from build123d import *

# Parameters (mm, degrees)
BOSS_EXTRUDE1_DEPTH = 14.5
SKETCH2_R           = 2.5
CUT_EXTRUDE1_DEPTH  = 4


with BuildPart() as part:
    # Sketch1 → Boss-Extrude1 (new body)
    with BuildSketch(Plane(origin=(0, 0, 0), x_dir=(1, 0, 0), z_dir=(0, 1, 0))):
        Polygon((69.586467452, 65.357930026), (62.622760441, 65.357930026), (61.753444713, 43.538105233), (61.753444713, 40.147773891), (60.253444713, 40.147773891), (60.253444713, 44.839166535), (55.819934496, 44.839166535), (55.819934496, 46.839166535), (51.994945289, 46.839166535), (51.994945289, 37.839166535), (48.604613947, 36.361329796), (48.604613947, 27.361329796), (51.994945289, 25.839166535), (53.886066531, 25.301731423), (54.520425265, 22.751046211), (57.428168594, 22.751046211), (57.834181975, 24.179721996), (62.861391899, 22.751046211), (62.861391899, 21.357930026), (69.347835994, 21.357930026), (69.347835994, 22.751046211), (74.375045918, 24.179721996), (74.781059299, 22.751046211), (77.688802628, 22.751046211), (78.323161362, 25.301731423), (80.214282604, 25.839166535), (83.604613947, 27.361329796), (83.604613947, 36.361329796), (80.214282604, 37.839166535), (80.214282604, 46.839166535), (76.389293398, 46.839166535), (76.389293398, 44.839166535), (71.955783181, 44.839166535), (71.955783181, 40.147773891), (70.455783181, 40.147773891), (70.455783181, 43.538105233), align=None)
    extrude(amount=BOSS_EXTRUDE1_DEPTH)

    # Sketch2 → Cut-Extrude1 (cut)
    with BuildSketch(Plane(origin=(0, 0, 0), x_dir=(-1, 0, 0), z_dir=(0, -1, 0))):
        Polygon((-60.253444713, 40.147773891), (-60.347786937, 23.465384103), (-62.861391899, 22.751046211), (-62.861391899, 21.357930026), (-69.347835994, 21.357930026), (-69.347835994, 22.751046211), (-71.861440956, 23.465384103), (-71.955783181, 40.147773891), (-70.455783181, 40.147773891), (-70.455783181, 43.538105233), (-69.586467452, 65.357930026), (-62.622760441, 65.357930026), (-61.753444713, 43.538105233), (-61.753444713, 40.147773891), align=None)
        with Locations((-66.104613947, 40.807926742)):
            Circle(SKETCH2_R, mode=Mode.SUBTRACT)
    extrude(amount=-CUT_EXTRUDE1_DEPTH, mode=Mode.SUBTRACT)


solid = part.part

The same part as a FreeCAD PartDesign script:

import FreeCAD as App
import Part
import Sketcher
from FreeCAD import Vector
Q = App.Units.Quantity


def add_polygon(sketch, points):
    """Adds a closed chain of lines whose ends are joined by coincident constraints."""
    first, n = sketch.GeometryCount, len(points)
    for a, b in zip(points, points[1:] + points[:1]):
        sketch.addGeometry(Part.LineSegment(App.Vector(*a, 0), App.Vector(*b, 0)), False)
    for i in range(n):
        sketch.addConstraint(Sketcher.Constraint("Coincident", first + i, 2, first + (i + 1) % n, 1))

doc = App.newDocument("Part")
params = doc.addObject("Spreadsheet::Sheet", "Params")
for row, (alias, value) in enumerate([
    ("sketch1_height", "2 mm"),
    ("sketch1_height2", "9 mm"),
    ("sketch1_width", "1.5 mm"),
    ("pad1_length", "14.5 mm"),
    ("sketch2_diameter", "5 mm"),
    ("sketch2_width", "1.5 mm"),
    ("pocket1_length", "4 mm"),
], start=1):
    params.set(f"A{row}", alias)
    params.set(f"B{row}", "=" + value)
    params.setAlias(f"B{row}", alias)

body = doc.addObject("PartDesign::Body", "Body")

# Sketch on XZ plane
sketch1 = doc.addObject("Sketcher::SketchObject", "Sketch")
body.addObject(sketch1)
sketch1.AttachmentSupport = (doc.XZ_Plane, [""])
sketch1.MapMode = "FlatFace"
add_polygon(sketch1, [(69.6, -65.4), (62.6, -65.4), (61.8, -43.5), (61.8, -40.1), (60.3, -40.1), (60.3, -44.8), (55.8, -44.8), (55.8, -46.8), (52, -46.8), (52, -37.8), (48.6, -36.4), (48.6, -27.4), (52, -25.8), (53.9, -25.3), (54.5, -22.8), (57.4, -22.8), (57.8, -24.2), (62.9, -22.8), (62.9, -21.4), (69.3, -21.4), (69.3, -22.8), (74.4, -24.2), (74.8, -22.8), (77.7, -22.8), (78.3, -25.3), (80.2, -25.8), (83.6, -27.4), (83.6, -36.4), (80.2, -37.8), (80.2, -46.8), (76.4, -46.8), (76.4, -44.8), (72, -44.8), (72, -40.1), (70.5, -40.1), (70.5, -43.5)])  # lines 0-35
sketch1.addConstraint([
    Sketcher.Constraint("Horizontal", 0),
    Sketcher.Constraint("Vertical", 2),
    Sketcher.Constraint("Horizontal", 3),
    Sketcher.Constraint("Vertical", 4),
    Sketcher.Constraint("Horizontal", 5),
    Sketcher.Constraint("Vertical", 6),
    Sketcher.Constraint("Horizontal", 7),
    Sketcher.Constraint("Vertical", 8),
    Sketcher.Constraint("Vertical", 10),
    Sketcher.Constraint("Horizontal", 14),
    Sketcher.Constraint("Vertical", 17),
    Sketcher.Constraint("Horizontal", 18),
    Sketcher.Constraint("Vertical", 19),
    Sketcher.Constraint("Horizontal", 22),
    Sketcher.Constraint("Vertical", 26),
    Sketcher.Constraint("Vertical", 28),
    Sketcher.Constraint("Horizontal", 29),
    Sketcher.Constraint("Vertical", 30),
    Sketcher.Constraint("Horizontal", 31),
    Sketcher.Constraint("Vertical", 32),
    Sketcher.Constraint("Horizontal", 33),
    Sketcher.Constraint("Vertical", 34),
    Sketcher.Constraint("Perpendicular", 12, 15),
    Sketcher.Constraint("Perpendicular", 15, 16),
    Sketcher.Constraint("Perpendicular", 20, 21),
    Sketcher.Constraint("Perpendicular", 21, 24),
    Sketcher.Constraint("Horizontal", 14, 2, 16, 2),
    Sketcher.Constraint("Horizontal", 16, 2, 19, 2),
    Sketcher.Constraint("Horizontal", 15, 2, 20, 2),
    Sketcher.Constraint("Horizontal", 19, 2, 21, 2),
    Sketcher.Constraint("Horizontal", 12, 2, 23, 2),
    Sketcher.Constraint("Horizontal", 11, 2, 24, 2),
    Sketcher.Constraint("Horizontal", 10, 2, 25, 2),
    Sketcher.Constraint("Horizontal", 9, 2, 26, 2),
    Sketcher.Constraint("Horizontal", 8, 2, 27, 2),
    Sketcher.Constraint("Horizontal", 7, 2, 28, 2),
    Sketcher.Constraint("Horizontal", 5, 2, 30, 2),
    Sketcher.Constraint("Horizontal", 3, 2, 32, 2),
    Sketcher.Constraint("Horizontal", 1, 2, 34, 2),
    Sketcher.Constraint("Vertical", 8, 2, 11, 2),
    Sketcher.Constraint("Vertical", 24, 2, 27, 2),
    Sketcher.Constraint("Equal", 14, 22),
    Sketcher.Constraint("Equal", 7, 29),
    Sketcher.Constraint("Equal", 5, 31),
    Sketcher.Constraint("Equal", 3, 33),
    Sketcher.Constraint("Equal", 8, 10),
    Sketcher.Constraint("Equal", 16, 20),
    Sketcher.Constraint("Equal", 13, 23),
    Sketcher.Constraint("Equal", 11, 25),
    Sketcher.Constraint("Equal", 1, 35),
    Sketcher.Constraint("DistanceY", 6, 2, 6, 1, Q("2 mm")),
    Sketcher.Constraint("DistanceY", 8, 1, 8, 2, Q("9 mm")),
    Sketcher.Constraint("DistanceX", 3, 2, 3, 1, Q("1.5 mm")),
    Sketcher.Constraint("DistanceY", 8, 2, 11, 2, Q("12 mm")),
    Sketcher.Constraint("DistanceX", 5, 2, 5, 1, Q("4.43351 mm")),
    Sketcher.Constraint("DistanceX", 7, 2, 7, 1, Q("3.824989 mm")),
    Sketcher.Constraint("DistanceY", 2, 1, 2, 2, Q("3.390331 mm")),
    Sketcher.Constraint("DistanceY", 10, 2, 12, 2, Q("2.059598 mm")),
    Sketcher.Constraint("DistanceY", 12, 2, 17, 2, Q("3.943801 mm")),
    Sketcher.Constraint("Distance", 11, Q("3.716359 mm")),
    Sketcher.Constraint("DistanceX", 0, 2, 0, 1, Q("6.963707 mm")),
    Sketcher.Constraint("DistanceX", 14, 1, 14, 2, Q("2.907743 mm")),
    Sketcher.Constraint("DistanceX", 18, 1, 18, 2, Q("6.486444 mm")),
    Sketcher.Constraint("DistanceY", 4, 2, 4, 1, Q("4.691393 mm")),
    Sketcher.Constraint("DistanceY", 17, 1, 17, 2, Q("1.393116 mm")),
    Sketcher.Constraint("DistanceX", -1, 1, 0, 2, Q("62.62276 mm")),
    Sketcher.Constraint("DistanceY", 0, 2, -1, 1, Q("65.35793 mm")),
    Sketcher.Constraint("DistanceY", 9, 2, -1, 1, Q("36.36133 mm")),
    Sketcher.Constraint("DistanceX", -1, 1, 14, 2, Q("57.428169 mm")),
    Sketcher.Constraint("DistanceX", -1, 1, 15, 2, Q("57.834182 mm")),
    Sketcher.Constraint("DistanceX", -1, 1, 23, 2, Q("78.323161 mm")),
    Sketcher.Constraint("DistanceX", 9, 2, 8, 2, Q("3.390331 mm")),
])
sketch1.setExpression("Constraints[86]", "Params.sketch1_height")
sketch1.setExpression("Constraints[87]", "Params.sketch1_height2")
sketch1.setExpression("Constraints[88]", "Params.sketch1_width")
pad1 = doc.addObject("PartDesign::Pad", "Pad")
body.addObject(pad1)
pad1.Profile = sketch1
pad1.setExpression("Length", "Params.pad1_length")
pad1.Reversed = True

# Sketch on XZ plane
sketch2 = doc.addObject("Sketcher::SketchObject", "Sketch001")
body.addObject(sketch2)
sketch2.AttachmentSupport = (doc.XZ_Plane, [""])
sketch2.MapMode = "FlatFace"
add_polygon(sketch2, [(60.3, -23.5), (60.3, -40.1), (61.8, -40.1), (61.8, -43.5), (62.6, -65.4), (69.6, -65.4), (70.5, -43.5), (70.5, -40.1), (72, -40.1), (71.9, -23.5), (69.3, -22.8), (69.3, -21.4), (62.9, -21.4), (62.9, -22.8)])  # lines 0-13
sketch2.addGeometry(Part.Circle(Vector(66.1, -40.8, 0), Vector(0, 0, 1), 2.5), False)  # 14
sketch2.addConstraint([
    Sketcher.Constraint("Horizontal", 1),
    Sketcher.Constraint("Vertical", 2),
    Sketcher.Constraint("Horizontal", 4),
    Sketcher.Constraint("Vertical", 6),
    Sketcher.Constraint("Horizontal", 7),
    Sketcher.Constraint("Vertical", 10),
    Sketcher.Constraint("Horizontal", 11),
    Sketcher.Constraint("Vertical", 12),
    Sketcher.Constraint("Horizontal", 2, 2, 5, 2),
    Sketcher.Constraint("Horizontal", 1, 2, 6, 2),
    Sketcher.Constraint("Horizontal", 9, 2, 12, 2),
    Sketcher.Constraint("Horizontal", 8, 2, 13, 2),
    Sketcher.Constraint("Equal", 1, 7),
    Sketcher.Constraint("Equal", 3, 5),
    Sketcher.Constraint("Equal", 0, 8),
    Sketcher.Constraint("Equal", 9, 13),
    Sketcher.Constraint("Diameter", 14, Q("5 mm")),
    Sketcher.Constraint("DistanceX", 1, 1, 1, 2, Q("1.5 mm")),
    Sketcher.Constraint("DistanceY", 2, 2, 2, 1, Q("3.390331 mm")),
    Sketcher.Constraint("DistanceX", 4, 1, 4, 2, Q("6.963707 mm")),
    Sketcher.Constraint("DistanceX", 11, 2, 11, 1, Q("6.486444 mm")),
    Sketcher.Constraint("DistanceY", 10, 1, 10, 2, Q("1.393116 mm")),
    Sketcher.Constraint("DistanceX", -1, 1, 3, 2, Q("62.62276 mm")),
    Sketcher.Constraint("DistanceY", 3, 2, -1, 1, Q("65.35793 mm")),
    Sketcher.Constraint("DistanceX", -1, 1, 8, 2, Q("71.861441 mm")),
    Sketcher.Constraint("DistanceY", 10, 2, -1, 1, Q("21.35793 mm")),
    Sketcher.Constraint("DistanceX", 0, 2, 14, 3, Q("5.851169 mm")),
    Sketcher.Constraint("DistanceY", 2, 2, 14, 3, Q("2.730178 mm")),
    Sketcher.Constraint("DistanceX", 14, 3, 5, 2, Q("4.351169 mm")),
    Sketcher.Constraint("DistanceY", 7, 2, 8, 2, Q("16.68239 mm")),
    Sketcher.Constraint("DistanceY", 14, 3, 9, 2, Q("18.056881 mm")),
])
sketch2.setExpression("Constraints[30]", "Params.sketch2_diameter")
sketch2.setExpression("Constraints[31]", "Params.sketch2_width")
pocket1 = doc.addObject("PartDesign::Pocket", "Pocket")
body.addObject(pocket1)
pocket1.Profile = sketch2
pocket1.setExpression("Length", "Params.pocket1_length")

doc.recompute()
